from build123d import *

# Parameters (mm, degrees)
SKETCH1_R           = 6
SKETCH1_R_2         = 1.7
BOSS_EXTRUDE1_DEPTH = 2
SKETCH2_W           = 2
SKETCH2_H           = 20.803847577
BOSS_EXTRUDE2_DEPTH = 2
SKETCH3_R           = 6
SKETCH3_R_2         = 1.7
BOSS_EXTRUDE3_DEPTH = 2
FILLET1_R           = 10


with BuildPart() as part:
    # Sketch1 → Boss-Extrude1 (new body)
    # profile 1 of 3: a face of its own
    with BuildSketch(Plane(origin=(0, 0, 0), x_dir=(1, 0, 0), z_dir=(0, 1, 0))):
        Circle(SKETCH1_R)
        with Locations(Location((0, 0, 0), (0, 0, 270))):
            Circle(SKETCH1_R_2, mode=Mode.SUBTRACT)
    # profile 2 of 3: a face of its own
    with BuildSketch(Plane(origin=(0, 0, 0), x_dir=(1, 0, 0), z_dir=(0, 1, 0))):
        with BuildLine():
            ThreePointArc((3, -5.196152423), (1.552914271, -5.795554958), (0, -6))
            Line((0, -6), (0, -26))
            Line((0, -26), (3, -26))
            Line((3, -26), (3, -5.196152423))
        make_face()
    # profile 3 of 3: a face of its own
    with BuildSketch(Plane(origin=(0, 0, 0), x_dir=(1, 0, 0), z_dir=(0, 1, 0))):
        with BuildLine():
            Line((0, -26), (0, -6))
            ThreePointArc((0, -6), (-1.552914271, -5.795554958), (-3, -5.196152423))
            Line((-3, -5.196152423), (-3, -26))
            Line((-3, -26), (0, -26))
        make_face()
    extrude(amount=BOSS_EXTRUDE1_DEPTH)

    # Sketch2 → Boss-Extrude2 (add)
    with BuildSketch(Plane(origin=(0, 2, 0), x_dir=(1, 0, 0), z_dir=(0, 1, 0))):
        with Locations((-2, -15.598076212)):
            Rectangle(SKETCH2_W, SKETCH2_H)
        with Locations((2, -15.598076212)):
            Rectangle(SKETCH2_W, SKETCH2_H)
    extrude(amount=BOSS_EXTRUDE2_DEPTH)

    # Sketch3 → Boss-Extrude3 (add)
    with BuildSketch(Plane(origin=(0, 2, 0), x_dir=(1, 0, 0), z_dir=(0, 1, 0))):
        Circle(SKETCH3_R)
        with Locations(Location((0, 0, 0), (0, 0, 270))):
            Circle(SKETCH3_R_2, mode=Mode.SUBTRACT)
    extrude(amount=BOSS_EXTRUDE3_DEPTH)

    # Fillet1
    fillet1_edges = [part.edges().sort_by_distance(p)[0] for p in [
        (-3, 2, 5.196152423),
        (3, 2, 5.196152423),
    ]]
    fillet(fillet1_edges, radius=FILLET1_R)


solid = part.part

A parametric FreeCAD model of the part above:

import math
import FreeCAD as App
import Part
import Sketcher
from FreeCAD import Vector
Q = App.Units.Quantity


def edges_at(feature, points):
    """Names of the edges that pass closest to the given points."""
    edges = feature.Shape.Edges
    near = lambda p: min(range(len(edges)), key=lambda i: edges[i].distToShape(Part.Vertex(*p))[0])
    return sorted({f"Edge{near(p) + 1}" for p in points})


def add_polygon(sketch, points):
    """Adds a closed chain of lines whose ends are joined by coincident constraints."""
    first, n = sketch.GeometryCount, len(points)
    for a, b in zip(points, points[1:] + points[:1]):
        sketch.addGeometry(Part.LineSegment(App.Vector(*a, 0), App.Vector(*b, 0)), False)
    for i in range(n):
        sketch.addConstraint(Sketcher.Constraint("Coincident", first + i, 2, first + (i + 1) % n, 1))

doc = App.newDocument("Part")
body = doc.addObject("PartDesign::Body", "Body")

# Sketch on XZ plane
sketch1 = body.newObject("Sketcher::SketchObject", "Sketch")
sketch1.AttachmentSupport = (doc.getObject("XZ_Plane"), [""])
sketch1.MapMode = "FlatFace"
sketch1.addGeometry([
    Part.LineSegment(Vector(-3, 5.196152, 0), Vector(-3, 26, 0)),  # 0
    Part.LineSegment(Vector(-3, 26, 0), Vector(3, 26, 0)),  # 1
    Part.LineSegment(Vector(3, 26, 0), Vector(3, 5.196152, 0)),  # 2
    Part.ArcOfCircle(Part.Circle(Vector(0, 0, 0), Vector(0, 0, 1), 6), math.radians(120), math.radians(420)),  # 3
    Part.Circle(Vector(0, 0, 0), Vector(0, 0, 1), 1.7),  # 4
], False)
sketch1.addConstraint([
    Sketcher.Constraint("Coincident", 0, 2, 1, 1),
    Sketcher.Constraint("Coincident", 1, 2, 2, 1),
    Sketcher.Constraint("Coincident", 2, 2, 3, 2),
    Sketcher.Constraint("Coincident", 3, 1, 0, 1),
    Sketcher.Constraint("Vertical", 0),
    Sketcher.Constraint("Horizontal", 1),
    Sketcher.Constraint("Vertical", 2),
    Sketcher.Constraint("Coincident", 3, 3, -1, 1),
    Sketcher.Constraint("Coincident", 4, 3, -1, 1),
    Sketcher.Constraint("Horizontal", 2, 2, 3, 1),
    Sketcher.Constraint("Radius", 3, Q("6 mm")),
    Sketcher.Constraint("Diameter", 4, Q("3.4 mm")),
    Sketcher.Constraint("DistanceX", 1, 1, 1, 2, Q("6 mm")),
    Sketcher.Constraint("DistanceY", -1, 1, 0, 2, Q("26 mm")),
])
pad1 = body.newObject("PartDesign::Pad", "Pad")
pad1.Profile = sketch1
pad1.Length = 2
pad1.Reversed = True

# Sketch on XZ plane
sketch2 = body.newObject("Sketcher::SketchObject", "Sketch001")
sketch2.AttachmentSupport = (doc.getObject("XZ_Plane"), [""])
sketch2.MapMode = "FlatFace"
sketch2.AttachmentOffset = App.Placement(Vector(0, 0, -2), App.Rotation())
add_polygon(sketch2, [(-3, 5.196152), (-3, 26), (-1, 26), (-1, 5.196152)])  # lines 0-3
add_polygon(sketch2, [(1, 5.196152), (1, 26), (3, 26), (3, 5.196152)])  # lines 4-7
sketch2.addConstraint([
    Sketcher.Constraint("Vertical", 0),
    Sketcher.Constraint("Horizontal", 1),
    Sketcher.Constraint("Vertical", 2),
    Sketcher.Constraint("Horizontal", 3),
    Sketcher.Constraint("Vertical", 4),
    Sketcher.Constraint("Horizontal", 5),
    Sketcher.Constraint("Vertical", 6),
    Sketcher.Constraint("Horizontal", 7),
    Sketcher.Constraint("Symmetric", 1, 2, 4, 2, -2),
    Sketcher.Constraint("Symmetric", 3, 2, 6, 2, -2),
    Sketcher.Constraint("DistanceX", 1, 1, 1, 2, Q("2 mm")),
    Sketcher.Constraint("DistanceX", 0, 2, -1, 1, Q("3 mm")),
    Sketcher.Constraint("DistanceY", -1, 1, 0, 2, Q("26 mm")),
    Sketcher.Constraint("DistanceY", 0, 1, 0, 2, Q("20.803848 mm")),
])
pad2 = body.newObject("PartDesign::Pad", "Pad001")
pad2.Profile = sketch2
pad2.Length = 2
pad2.Reversed = True

# Sketch on XZ plane
sketch3 = body.newObject("Sketcher::SketchObject", "Sketch002")
sketch3.AttachmentSupport = (doc.getObject("XZ_Plane"), [""])
sketch3.MapMode = "FlatFace"
sketch3.AttachmentOffset = App.Placement(Vector(0, 0, -2), App.Rotation())
sketch3.addGeometry([
    Part.Circle(Vector(0, 0, 0), Vector(0, 0, 1), 6),
    Part.Circle(Vector(0, 0, 0), Vector(0, 0, 1), 1.7),
], False)
sketch3.addConstraint([
    Sketcher.Constraint("Coincident", 0, 3, -1, 1),
    Sketcher.Constraint("Coincident", 1, 3, -1, 1),
    Sketcher.Constraint("Diameter", 0, Q("12 mm")),
    Sketcher.Constraint("Diameter", 1, Q("3.4 mm")),
])
pad3 = body.newObject("PartDesign::Pad", "Pad002")
pad3.Profile = sketch3
pad3.Length = 2
pad3.Reversed = True
doc.recompute()

fillet = body.newObject("PartDesign::Fillet", "Fillet")
fillet.Base = (pad3, edges_at(pad3, [(-3, 3, 5.196), (3, 1, 5.196)]))
fillet.Radius = 10

doc.recompute()
